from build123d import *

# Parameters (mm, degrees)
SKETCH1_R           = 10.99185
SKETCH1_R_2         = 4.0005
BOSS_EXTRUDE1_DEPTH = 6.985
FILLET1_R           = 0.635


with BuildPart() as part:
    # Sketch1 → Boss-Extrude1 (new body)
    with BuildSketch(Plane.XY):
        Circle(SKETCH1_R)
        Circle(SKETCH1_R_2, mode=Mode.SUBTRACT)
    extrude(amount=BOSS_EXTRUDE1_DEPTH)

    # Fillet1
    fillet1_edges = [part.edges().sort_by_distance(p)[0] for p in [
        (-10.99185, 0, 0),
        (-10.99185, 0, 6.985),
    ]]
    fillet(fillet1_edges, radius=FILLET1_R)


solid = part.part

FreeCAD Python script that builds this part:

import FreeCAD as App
import Part
import Sketcher
from FreeCAD import Vector
Q = App.Units.Quantity


def edges_at(feature, points):
    """Names of the edges that pass closest to the given points."""
    edges = feature.Shape.Edges
    near = lambda p: min(range(len(edges)), key=lambda i: edges[i].distToShape(Part.Vertex(*p))[0])
    return sorted({f"Edge{near(p) + 1}" for p in points})

doc = App.newDocument("Part")
body = doc.addObject("PartDesign::Body", "Body")

# Sketch on XY plane
sketch1 = doc.addObject("Sketcher::SketchObject", "Sketch")
body.addObject(sketch1)
sketch1.AttachmentSupport = (doc.XY_Plane, [""])
sketch1.MapMode = "FlatFace"
sketch1.addGeometry(Part.Circle(Vector(0, 0, 0), Vector(0, 0, 1), 10.99185), False)
sketch1.addGeometry(Part.Circle(Vector(0, 0, 0), Vector(0, 0, 1), 4.0005), False)
sketch1.addConstraint(Sketcher.Constraint("Coincident", 0, 3, -1, 1))
sketch1.addConstraint(Sketcher.Constraint("Coincident", 1, 3, -1, 1))
sketch1.addConstraint(Sketcher.Constraint("Diameter", 1, Q("0.315 in")))
sketch1.addConstraint(Sketcher.Constraint("Diameter", 0, Q("0.8655 in")))
pad1 = doc.addObject("PartDesign::Pad", "Pad")
body.addObject(pad1)
pad1.Profile = sketch1
pad1.Length = Q("0.275 in")
doc.recompute()

fillet = doc.addObject("PartDesign::Fillet", "Fillet")
body.addObject(fillet)
fillet.Base = (pad1, edges_at(pad1, [(-10.992, 0, 0), (-10.992, 0, 6.985)]))
fillet.Radius = Q("0.025 in")

doc.recompute()
